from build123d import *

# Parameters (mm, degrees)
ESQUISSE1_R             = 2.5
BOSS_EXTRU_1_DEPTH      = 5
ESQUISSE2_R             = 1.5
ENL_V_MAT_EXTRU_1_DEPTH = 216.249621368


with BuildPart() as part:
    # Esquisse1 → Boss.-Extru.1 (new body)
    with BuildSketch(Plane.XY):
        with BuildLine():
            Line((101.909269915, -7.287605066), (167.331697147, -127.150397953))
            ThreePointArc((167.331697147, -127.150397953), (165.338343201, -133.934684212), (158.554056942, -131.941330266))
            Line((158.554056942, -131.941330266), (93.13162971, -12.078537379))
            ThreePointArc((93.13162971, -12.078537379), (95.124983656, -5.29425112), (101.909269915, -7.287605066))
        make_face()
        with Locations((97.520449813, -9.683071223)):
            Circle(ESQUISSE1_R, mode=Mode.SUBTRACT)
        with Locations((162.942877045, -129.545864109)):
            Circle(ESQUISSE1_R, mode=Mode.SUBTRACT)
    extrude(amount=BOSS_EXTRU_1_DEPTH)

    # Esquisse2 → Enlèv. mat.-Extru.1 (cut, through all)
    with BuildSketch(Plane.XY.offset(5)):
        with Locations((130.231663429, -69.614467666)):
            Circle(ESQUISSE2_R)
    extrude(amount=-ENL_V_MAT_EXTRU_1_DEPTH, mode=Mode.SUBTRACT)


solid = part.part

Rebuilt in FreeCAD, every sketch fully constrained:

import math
import FreeCAD as App
import Part
import Sketcher

V = App.Vector
Q = App.Units.Quantity

doc = App.newDocument("Part")
body = doc.addObject("PartDesign::Body", "Body")

# Sketch on XY plane
sketch1 = body.newObject("Sketcher::SketchObject", "Sketch")
sketch1.AttachmentSupport = (doc.getObject("XY_Plane"), [""])
sketch1.MapMode = "FlatFace"
sketch1.addGeometry([
    Part.LineSegment(V(167.3, -127.2, 0), V(101.9, -7.3, 0)),  # 0
    Part.ArcOfCircle(Part.Circle(V(97.5, -9.7, 0), V(0, 0, 1), 5), math.radians(29), math.radians(209)),  # 1
    Part.LineSegment(V(93.1, -12.1, 0), V(158.6, -131.9, 0)),  # 2
    Part.ArcOfCircle(Part.Circle(V(162.9, -129.5, 0), V(0, 0, 1), 5), math.radians(-151), math.radians(29)),  # 3
    Part.Circle(V(162.9, -129.5, 0), V(0, 0, 1), 2.5),  # 4
    Part.Circle(V(97.5, -9.7, 0), V(0, 0, 1), 2.5),  # 5
], False)
sketch1.addConstraint([
    Sketcher.Constraint("Tangent", 0, 2, 1, 1),
    Sketcher.Constraint("Tangent", 1, 2, 2, 1),
    Sketcher.Constraint("Tangent", 2, 2, 3, 1),
    Sketcher.Constraint("Tangent", 3, 2, 0, 1),
    Sketcher.Constraint("Coincident", 4, 3, 3, 3),
    Sketcher.Constraint("Coincident", 5, 3, 1, 3),
    Sketcher.Constraint("Equal", 1, 3),
    Sketcher.Constraint("Equal", 4, 5),
    Sketcher.Constraint("Diameter", 4, Q("5 mm")),
    Sketcher.Constraint("Radius", 1, Q("5 mm")),
    Sketcher.Constraint("Distance", 0, Q("136.554689 mm")),
    Sketcher.Constraint("DistanceX", -1, 1, 1, 3, Q("97.52045 mm")),
    Sketcher.Constraint("DistanceY", 1, 3, -1, 1, Q("9.683071 mm")),
    Sketcher.Constraint("DistanceX", -1, 1, 0, 2, Q("101.90927 mm")),
])
pad1 = body.newObject("PartDesign::Pad", "Pad")
pad1.Profile = sketch1
pad1.Length = 5

# Sketch on XY plane
sketch2 = body.newObject("Sketcher::SketchObject", "Sketch001")
sketch2.AttachmentSupport = (doc.getObject("XY_Plane"), [""])
sketch2.MapMode = "FlatFace"
sketch2.AttachmentOffset = App.Placement(V(0, 0, 5), App.Rotation())
sketch2.addGeometry(Part.Circle(V(130.2, -69.6, 0), V(0, 0, 1), 1.5), False)
sketch2.addConstraint([
    Sketcher.Constraint("Diameter", 0, Q("3 mm")),
    Sketcher.Constraint("DistanceX", -1, 1, 0, 3, Q("130.231663 mm")),
    Sketcher.Constraint("DistanceY", 0, 3, -1, 1, Q("69.614468 mm")),
])
pocket1 = body.newObject("PartDesign::Pocket", "Pocket")
pocket1.Profile = sketch2
pocket1.Type = "ThroughAll"

doc.recompute()
